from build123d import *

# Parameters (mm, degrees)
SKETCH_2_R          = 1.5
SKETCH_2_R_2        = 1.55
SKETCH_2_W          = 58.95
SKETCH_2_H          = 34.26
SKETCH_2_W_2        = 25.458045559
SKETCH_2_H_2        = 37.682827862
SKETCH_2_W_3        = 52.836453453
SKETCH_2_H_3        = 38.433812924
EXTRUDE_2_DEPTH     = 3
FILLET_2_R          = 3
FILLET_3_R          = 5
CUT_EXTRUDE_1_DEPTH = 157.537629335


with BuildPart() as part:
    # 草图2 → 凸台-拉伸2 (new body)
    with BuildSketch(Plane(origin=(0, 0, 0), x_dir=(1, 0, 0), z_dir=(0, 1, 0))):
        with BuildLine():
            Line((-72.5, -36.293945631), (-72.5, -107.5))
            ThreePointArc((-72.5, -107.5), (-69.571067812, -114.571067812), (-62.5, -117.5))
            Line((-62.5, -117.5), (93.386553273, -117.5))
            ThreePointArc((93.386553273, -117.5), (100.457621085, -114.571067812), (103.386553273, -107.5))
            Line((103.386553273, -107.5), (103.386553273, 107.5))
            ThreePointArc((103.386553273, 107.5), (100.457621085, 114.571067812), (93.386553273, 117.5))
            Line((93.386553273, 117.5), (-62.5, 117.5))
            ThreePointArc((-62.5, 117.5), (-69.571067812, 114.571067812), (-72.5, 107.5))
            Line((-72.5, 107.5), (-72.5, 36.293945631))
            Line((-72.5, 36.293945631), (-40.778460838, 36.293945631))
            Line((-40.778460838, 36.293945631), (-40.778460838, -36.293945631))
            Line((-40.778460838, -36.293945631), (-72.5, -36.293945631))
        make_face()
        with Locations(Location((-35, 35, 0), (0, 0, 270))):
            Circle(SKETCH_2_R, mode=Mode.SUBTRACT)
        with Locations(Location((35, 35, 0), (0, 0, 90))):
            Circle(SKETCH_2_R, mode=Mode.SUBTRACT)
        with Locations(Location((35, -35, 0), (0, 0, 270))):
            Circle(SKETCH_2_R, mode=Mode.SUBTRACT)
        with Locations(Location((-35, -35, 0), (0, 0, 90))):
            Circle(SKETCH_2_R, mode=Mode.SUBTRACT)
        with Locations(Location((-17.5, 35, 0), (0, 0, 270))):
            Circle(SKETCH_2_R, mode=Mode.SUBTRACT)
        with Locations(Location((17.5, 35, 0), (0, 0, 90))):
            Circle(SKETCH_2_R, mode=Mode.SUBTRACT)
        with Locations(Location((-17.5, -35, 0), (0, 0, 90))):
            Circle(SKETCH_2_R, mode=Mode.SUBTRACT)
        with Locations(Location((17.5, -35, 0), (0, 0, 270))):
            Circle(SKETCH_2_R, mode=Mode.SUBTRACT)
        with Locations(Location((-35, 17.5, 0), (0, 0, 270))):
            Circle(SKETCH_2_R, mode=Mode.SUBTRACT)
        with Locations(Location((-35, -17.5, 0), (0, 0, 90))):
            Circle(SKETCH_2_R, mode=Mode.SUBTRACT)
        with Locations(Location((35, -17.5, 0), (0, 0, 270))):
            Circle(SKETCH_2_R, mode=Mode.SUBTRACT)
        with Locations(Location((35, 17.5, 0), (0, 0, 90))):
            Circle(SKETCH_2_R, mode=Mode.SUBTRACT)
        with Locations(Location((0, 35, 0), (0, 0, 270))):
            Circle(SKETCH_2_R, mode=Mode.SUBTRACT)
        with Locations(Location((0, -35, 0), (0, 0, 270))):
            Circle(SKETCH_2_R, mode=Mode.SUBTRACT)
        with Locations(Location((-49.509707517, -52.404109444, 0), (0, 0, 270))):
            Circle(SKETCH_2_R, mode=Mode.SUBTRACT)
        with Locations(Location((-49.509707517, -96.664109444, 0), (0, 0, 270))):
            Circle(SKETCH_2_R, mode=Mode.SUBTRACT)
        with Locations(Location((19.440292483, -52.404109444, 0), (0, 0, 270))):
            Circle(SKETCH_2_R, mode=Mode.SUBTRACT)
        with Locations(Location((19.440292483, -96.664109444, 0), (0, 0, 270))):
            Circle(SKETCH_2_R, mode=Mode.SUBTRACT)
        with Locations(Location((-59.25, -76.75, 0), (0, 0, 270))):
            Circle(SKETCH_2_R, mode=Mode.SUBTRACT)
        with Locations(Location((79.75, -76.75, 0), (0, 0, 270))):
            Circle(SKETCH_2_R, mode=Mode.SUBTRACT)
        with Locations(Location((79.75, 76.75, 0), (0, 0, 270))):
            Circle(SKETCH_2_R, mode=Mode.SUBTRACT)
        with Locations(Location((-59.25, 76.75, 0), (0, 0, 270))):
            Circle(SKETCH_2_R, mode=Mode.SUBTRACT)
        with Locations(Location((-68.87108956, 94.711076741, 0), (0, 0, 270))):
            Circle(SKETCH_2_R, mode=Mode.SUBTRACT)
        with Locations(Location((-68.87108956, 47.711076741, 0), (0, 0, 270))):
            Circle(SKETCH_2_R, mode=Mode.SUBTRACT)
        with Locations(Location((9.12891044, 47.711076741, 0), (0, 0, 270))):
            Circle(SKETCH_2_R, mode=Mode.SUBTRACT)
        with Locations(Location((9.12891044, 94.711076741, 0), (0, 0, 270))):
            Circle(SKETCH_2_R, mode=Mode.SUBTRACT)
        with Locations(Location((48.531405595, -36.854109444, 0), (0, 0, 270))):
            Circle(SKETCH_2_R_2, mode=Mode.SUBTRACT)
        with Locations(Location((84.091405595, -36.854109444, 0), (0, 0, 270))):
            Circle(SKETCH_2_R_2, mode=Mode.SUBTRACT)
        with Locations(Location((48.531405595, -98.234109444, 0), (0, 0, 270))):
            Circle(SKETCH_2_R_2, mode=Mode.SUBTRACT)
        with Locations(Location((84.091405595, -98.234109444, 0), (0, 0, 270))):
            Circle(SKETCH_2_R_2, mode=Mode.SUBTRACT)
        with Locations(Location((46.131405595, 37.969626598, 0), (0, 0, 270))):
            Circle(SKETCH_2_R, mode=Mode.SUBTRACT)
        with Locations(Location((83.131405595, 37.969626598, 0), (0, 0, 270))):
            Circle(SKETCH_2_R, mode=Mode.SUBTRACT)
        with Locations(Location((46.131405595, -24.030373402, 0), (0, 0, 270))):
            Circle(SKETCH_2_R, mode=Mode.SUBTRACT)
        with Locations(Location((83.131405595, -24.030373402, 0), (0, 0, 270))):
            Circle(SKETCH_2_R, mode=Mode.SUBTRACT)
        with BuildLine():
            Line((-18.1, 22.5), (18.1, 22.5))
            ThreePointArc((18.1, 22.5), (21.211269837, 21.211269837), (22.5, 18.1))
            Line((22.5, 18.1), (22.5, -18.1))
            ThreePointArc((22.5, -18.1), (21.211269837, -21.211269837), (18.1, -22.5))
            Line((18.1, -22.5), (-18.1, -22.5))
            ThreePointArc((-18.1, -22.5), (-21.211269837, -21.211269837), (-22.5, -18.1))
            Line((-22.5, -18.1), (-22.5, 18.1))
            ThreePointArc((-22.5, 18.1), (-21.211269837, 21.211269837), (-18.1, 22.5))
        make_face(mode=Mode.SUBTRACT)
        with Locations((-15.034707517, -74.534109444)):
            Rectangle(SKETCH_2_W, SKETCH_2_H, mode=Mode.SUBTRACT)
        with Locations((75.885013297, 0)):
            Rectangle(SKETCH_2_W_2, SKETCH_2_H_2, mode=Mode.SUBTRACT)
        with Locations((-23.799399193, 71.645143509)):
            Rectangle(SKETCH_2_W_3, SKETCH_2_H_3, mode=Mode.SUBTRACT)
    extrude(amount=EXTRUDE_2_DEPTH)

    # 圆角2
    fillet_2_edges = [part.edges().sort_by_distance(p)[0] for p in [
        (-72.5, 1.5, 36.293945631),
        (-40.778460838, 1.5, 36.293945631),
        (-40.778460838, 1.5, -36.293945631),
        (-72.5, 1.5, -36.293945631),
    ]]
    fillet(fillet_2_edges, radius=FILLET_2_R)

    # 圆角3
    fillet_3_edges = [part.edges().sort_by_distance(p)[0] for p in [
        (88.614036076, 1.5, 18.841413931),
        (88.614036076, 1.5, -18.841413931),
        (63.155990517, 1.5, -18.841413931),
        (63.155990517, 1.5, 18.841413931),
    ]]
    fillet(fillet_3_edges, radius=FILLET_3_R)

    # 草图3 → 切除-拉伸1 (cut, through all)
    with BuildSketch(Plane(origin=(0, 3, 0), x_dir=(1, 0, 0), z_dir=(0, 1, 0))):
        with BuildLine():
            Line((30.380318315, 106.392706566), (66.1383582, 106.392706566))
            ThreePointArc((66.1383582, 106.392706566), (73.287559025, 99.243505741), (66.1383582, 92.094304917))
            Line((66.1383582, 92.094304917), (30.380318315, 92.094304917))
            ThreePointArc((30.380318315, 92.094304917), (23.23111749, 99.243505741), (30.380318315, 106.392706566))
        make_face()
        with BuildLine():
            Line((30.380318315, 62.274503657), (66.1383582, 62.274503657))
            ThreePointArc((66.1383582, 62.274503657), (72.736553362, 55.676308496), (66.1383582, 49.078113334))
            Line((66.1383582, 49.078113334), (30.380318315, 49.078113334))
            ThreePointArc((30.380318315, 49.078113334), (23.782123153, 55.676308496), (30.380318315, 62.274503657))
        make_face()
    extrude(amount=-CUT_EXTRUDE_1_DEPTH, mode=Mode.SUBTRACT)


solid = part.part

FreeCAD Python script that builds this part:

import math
import FreeCAD as App
import Part
import Sketcher
from FreeCAD import Vector


def edges_at(feature, points):
    """Names of the edges that pass closest to the given points."""
    edges = feature.Shape.Edges
    near = lambda p: min(range(len(edges)), key=lambda i: edges[i].distToShape(Part.Vertex(*p))[0])
    return sorted({f"Edge{near(p) + 1}" for p in points})


def add_polygon(sketch, points):
    """Adds a closed chain of lines whose ends are joined by coincident constraints."""
    first, n = sketch.GeometryCount, len(points)
    for a, b in zip(points, points[1:] + points[:1]):
        sketch.addGeometry(Part.LineSegment(App.Vector(*a, 0), App.Vector(*b, 0)), False)
    for i in range(n):
        sketch.addConstraint(Sketcher.Constraint("Coincident", first + i, 2, first + (i + 1) % n, 1))

doc = App.newDocument("Part")
body = doc.addObject("PartDesign::Body", "Body")

# Sketch on XZ plane
sketch1 = body.newObject("Sketcher::SketchObject", "Sketch")
sketch1.AttachmentSupport = (doc.getObject("XZ_Plane"), [""])
sketch1.MapMode = "FlatFace"
sketch1.addGeometry(Part.LineSegment(Vector(-72.5, 36.3, 0), Vector(-72.5, 107.5, 0)), False)  # 0
sketch1.addGeometry(Part.ArcOfCircle(Part.Circle(Vector(-62.5, 107.5, 0), Vector(0, 0, 1), 10), math.radians(90), math.radians(180)), False)  # 1
sketch1.addGeometry(Part.LineSegment(Vector(-62.5, 117.5, 0), Vector(93.4, 117.5, 0)), False)  # 2
sketch1.addGeometry(Part.ArcOfCircle(Part.Circle(Vector(93.4, 107.5, 0), Vector(0, 0, 1), 10), math.radians(0), math.radians(90)), False)  # 3
sketch1.addGeometry(Part.LineSegment(Vector(103.4, 107.5, 0), Vector(103.4, -107.5, 0)), False)  # 4
sketch1.addGeometry(Part.ArcOfCircle(Part.Circle(Vector(93.4, -107.5, 0), Vector(0, 0, 1), 10), math.radians(-90), math.radians(0)), False)  # 5
sketch1.addGeometry(Part.LineSegment(Vector(93.4, -117.5, 0), Vector(-62.5, -117.5, 0)), False)  # 6
sketch1.addGeometry(Part.ArcOfCircle(Part.Circle(Vector(-62.5, -107.5, 0), Vector(0, 0, 1), 10), math.radians(180), math.radians(270)), False)  # 7
sketch1.addGeometry(Part.LineSegment(Vector(-72.5, -107.5, 0), Vector(-72.5, -36.3, 0)), False)  # 8
sketch1.addGeometry(Part.LineSegment(Vector(-72.5, -36.3, 0), Vector(-40.8, -36.3, 0)), False)  # 9
sketch1.addGeometry(Part.LineSegment(Vector(-40.8, -36.3, 0), Vector(-40.8, 36.3, 0)), False)  # 10
sketch1.addGeometry(Part.LineSegment(Vector(-40.8, 36.3, 0), Vector(-72.5, 36.3, 0)), False)  # 11
sketch1.addGeometry(Part.Circle(Vector(-59.2, 76.8, 0), Vector(0, 0, 1), 1.5), False)  # 12
sketch1.addGeometry(Part.Circle(Vector(-49.5, 96.7, 0), Vector(0, 0, 1), 1.5), False)  # 13
sketch1.addGeometry(Part.Circle(Vector(-49.5, 52.4, 0), Vector(0, 0, 1), 1.5), False)  # 14
add_polygon(sketch1, [(14.4, 91.7), (-44.5, 91.7), (-44.5, 57.4), (14.4, 57.4)])  # lines 15-18
sketch1.addGeometry(Part.Circle(Vector(-35, 35, 0), Vector(0, 0, 1), 1.5), False)  # 19
sketch1.addGeometry(Part.Circle(Vector(-35, 17.5, 0), Vector(0, 0, 1), 1.5), False)  # 20
sketch1.addGeometry(Part.Circle(Vector(-17.5, 35, 0), Vector(0, 0, 1), 1.5), False)  # 21
sketch1.addGeometry(Part.Circle(Vector(0, 35, 0), Vector(0, 0, 1), 1.5), False)  # 22
sketch1.addGeometry(Part.Circle(Vector(19.4, 96.7, 0), Vector(0, 0, 1), 1.5), False)  # 23
sketch1.addGeometry(Part.Circle(Vector(48.5, 98.2, 0), Vector(0, 0, 1), 1.6), False)  # 24
sketch1.addGeometry(Part.Circle(Vector(19.4, 52.4, 0), Vector(0, 0, 1), 1.5), False)  # 25
sketch1.addGeometry(Part.Circle(Vector(84.1, 98.2, 0), Vector(0, 0, 1), 1.6), False)  # 26
sketch1.addGeometry(Part.Circle(Vector(79.8, 76.8, 0), Vector(0, 0, 1), 1.5), False)  # 27
sketch1.addGeometry(Part.Circle(Vector(17.5, 35, 0), Vector(0, 0, 1), 1.5), False)  # 28
sketch1.addGeometry(Part.Circle(Vector(35, 35, 0), Vector(0, 0, 1), 1.5), False)  # 29
sketch1.addGeometry(Part.Circle(Vector(48.5, 36.9, 0), Vector(0, 0, 1), 1.6), False)  # 30
sketch1.addGeometry(Part.Circle(Vector(35, 17.5, 0), Vector(0, 0, 1), 1.5), False)  # 31
sketch1.addGeometry(Part.Circle(Vector(46.1, 24, 0), Vector(0, 0, 1), 1.5), False)  # 32
sketch1.addGeometry(Part.Circle(Vector(84.1, 36.9, 0), Vector(0, 0, 1), 1.6), False)  # 33
sketch1.addGeometry(Part.Circle(Vector(83.1, 24, 0), Vector(0, 0, 1), 1.5), False)  # 34
sketch1.addGeometry(Part.Circle(Vector(-35, -17.5, 0), Vector(0, 0, 1), 1.5), False)  # 35
sketch1.addGeometry(Part.Circle(Vector(-35, -35, 0), Vector(0, 0, 1), 1.5), False)  # 36
sketch1.addGeometry(Part.ArcOfCircle(Part.Circle(Vector(-18.1, -18.1, 0), Vector(0, 0, 1), 4.4), math.radians(-180), math.radians(-90)), False)  # 37
sketch1.addGeometry(Part.LineSegment(Vector(-18.1, -22.5, 0), Vector(18.1, -22.5, 0)), False)  # 38
sketch1.addGeometry(Part.ArcOfCircle(Part.Circle(Vector(18.1, -18.1, 0), Vector(0, 0, 1), 4.4), math.radians(-90), math.radians(0)), False)  # 39
sketch1.addGeometry(Part.LineSegment(Vector(22.5, -18.1, 0), Vector(22.5, 18.1, 0)), False)  # 40
sketch1.addGeometry(Part.ArcOfCircle(Part.Circle(Vector(18.1, 18.1, 0), Vector(0, 0, 1), 4.4), math.radians(0), math.radians(90)), False)  # 41
sketch1.addGeometry(Part.LineSegment(Vector(18.1, 22.5, 0), Vector(-18.1, 22.5, 0)), False)  # 42
sketch1.addGeometry(Part.ArcOfCircle(Part.Circle(Vector(-18.1, 18.1, 0), Vector(0, 0, 1), 4.4), math.radians(90), math.radians(180)), False)  # 43
sketch1.addGeometry(Part.LineSegment(Vector(-22.5, 18.1, 0), Vector(-22.5, -18.1, 0)), False)  # 44
sketch1.addGeometry(Part.Circle(Vector(-17.5, -35, 0), Vector(0, 0, 1), 1.5), False)  # 45
sketch1.addGeometry(Part.Circle(Vector(0, -35, 0), Vector(0, 0, 1), 1.5), False)  # 46
sketch1.addGeometry(Part.Circle(Vector(-68.9, -47.7, 0), Vector(0, 0, 1), 1.5), False)  # 47
sketch1.addGeometry(Part.Circle(Vector(-59.2, -76.8, 0), Vector(0, 0, 1), 1.5), False)  # 48
sketch1.addGeometry(Part.Circle(Vector(-68.9, -94.7, 0), Vector(0, 0, 1), 1.5), False)  # 49
add_polygon(sketch1, [(2.6, -52.4), (-50.2, -52.4), (-50.2, -90.9), (2.6, -90.9)])  # lines 50-53
sketch1.addGeometry(Part.Circle(Vector(35, -17.5, 0), Vector(0, 0, 1), 1.5), False)  # 54
sketch1.addGeometry(Part.Circle(Vector(17.5, -35, 0), Vector(0, 0, 1), 1.5), False)  # 55
sketch1.addGeometry(Part.Circle(Vector(35, -35, 0), Vector(0, 0, 1), 1.5), False)  # 56
sketch1.addGeometry(Part.Circle(Vector(46.1, -38, 0), Vector(0, 0, 1), 1.5), False)  # 57
add_polygon(sketch1, [(88.6, 18.8), (63.2, 18.8), (63.2, -18.8), (88.6, -18.8)])  # lines 58-61
sketch1.addGeometry(Part.Circle(Vector(83.1, -38, 0), Vector(0, 0, 1), 1.5), False)  # 62
sketch1.addGeometry(Part.Circle(Vector(9.1, -47.7, 0), Vector(0, 0, 1), 1.5), False)  # 63
sketch1.addGeometry(Part.Circle(Vector(9.1, -94.7, 0), Vector(0, 0, 1), 1.5), False)  # 64
sketch1.addGeometry(Part.Circle(Vector(79.8, -76.8, 0), Vector(0, 0, 1), 1.5), False)  # 65
sketch1.addConstraint([
    Sketcher.Constraint("Tangent", 0, 2, 1, 2),
    Sketcher.Constraint("Tangent", 1, 1, 2, 1),
    Sketcher.Constraint("Tangent", 2, 2, 3, 2),
    Sketcher.Constraint("Tangent", 3, 1, 4, 1),
    Sketcher.Constraint("Tangent", 4, 2, 5, 2),
    Sketcher.Constraint("Tangent", 5, 1, 6, 1),
    Sketcher.Constraint("Tangent", 6, 2, 7, 2),
    Sketcher.Constraint("Tangent", 7, 1, 8, 1),
    Sketcher.Constraint("Coincident", 8, 2, 9, 1),
    Sketcher.Constraint("Coincident", 9, 2, 10, 1),
    Sketcher.Constraint("Coincident", 10, 2, 11, 1),
    Sketcher.Constraint("Coincident", 11, 2, 0, 1),
    Sketcher.Constraint("Tangent", 37, 2, 38, 1),
    Sketcher.Constraint("Tangent", 38, 2, 39, 1),
    Sketcher.Constraint("Tangent", 39, 2, 40, 1),
    Sketcher.Constraint("Tangent", 40, 2, 41, 1),
    Sketcher.Constraint("Tangent", 41, 2, 42, 1),
    Sketcher.Constraint("Tangent", 42, 2, 43, 1),
    Sketcher.Constraint("Tangent", 43, 2, 44, 1),
    Sketcher.Constraint("Tangent", 44, 2, 37, 1),
    Sketcher.Constraint("Vertical", 0),
    Sketcher.Constraint("Horizontal", 2),
    Sketcher.Constraint("Vertical", 4),
    Sketcher.Constraint("Horizontal", 6),
    Sketcher.Constraint("Vertical", 8),
    Sketcher.Constraint("Horizontal", 9),
    Sketcher.Constraint("Vertical", 10),
    Sketcher.Constraint("Horizontal", 11),
    Sketcher.Constraint("Horizontal", 15),
    Sketcher.Constraint("Vertical", 16),
    Sketcher.Constraint("Horizontal", 17),
    Sketcher.Constraint("Vertical", 18),
    Sketcher.Constraint("Horizontal", 38),
    Sketcher.Constraint("Vertical", 40),
    Sketcher.Constraint("Horizontal", 42),
    Sketcher.Constraint("Vertical", 44),
    Sketcher.Constraint("Horizontal", 50),
    Sketcher.Constraint("Vertical", 51),
    Sketcher.Constraint("Horizontal", 52),
    Sketcher.Constraint("Vertical", 53),
    Sketcher.Constraint("Horizontal", 58),
    Sketcher.Constraint("Vertical", 59),
    Sketcher.Constraint("Horizontal", 60),
    Sketcher.Constraint("Vertical", 61),
    Sketcher.Constraint("Equal", 1, 3),
    Sketcher.Constraint("Equal", 3, 5),
    Sketcher.Constraint("Equal", 5, 7),
    Sketcher.Constraint("Equal", 12, 13),
    Sketcher.Constraint("Equal", 13, 14),
    Sketcher.Constraint("Equal", 14, 19),
    Sketcher.Constraint("Equal", 19, 20),
    Sketcher.Constraint("Equal", 20, 21),
    Sketcher.Constraint("Equal", 21, 22),
    Sketcher.Constraint("Equal", 22, 23),
    Sketcher.Constraint("Equal", 23, 25),
    Sketcher.Constraint("Equal", 24, 26),
    Sketcher.Constraint("Equal", 25, 27),
    Sketcher.Constraint("Equal", 27, 28),
    Sketcher.Constraint("Equal", 28, 29),
    Sketcher.Constraint("Equal", 26, 30),
    Sketcher.Constraint("Equal", 29, 31),
    Sketcher.Constraint("Equal", 31, 32),
    Sketcher.Constraint("Equal", 30, 33),
    Sketcher.Constraint("Equal", 32, 34),
    Sketcher.Constraint("Equal", 34, 35),
    Sketcher.Constraint("Equal", 35, 36),
    Sketcher.Constraint("Equal", 37, 39),
    Sketcher.Constraint("Equal", 39, 41),
    Sketcher.Constraint("Equal", 41, 43),
    Sketcher.Constraint("Equal", 36, 45),
    Sketcher.Constraint("Equal", 45, 46),
    Sketcher.Constraint("Equal", 46, 47),
    Sketcher.Constraint("Equal", 47, 48),
    Sketcher.Constraint("Equal", 48, 49),
    Sketcher.Constraint("Equal", 49, 54),
    Sketcher.Constraint("Equal", 54, 55),
    Sketcher.Constraint("Equal", 55, 56),
    Sketcher.Constraint("Equal", 56, 57),
    Sketcher.Constraint("Equal", 57, 62),
    Sketcher.Constraint("Equal", 62, 63),
    Sketcher.Constraint("Equal", 63, 64),
    Sketcher.Constraint("Equal", 64, 65),
    Sketcher.Constraint("Symmetric", 31, 3, 35, 3, -1, 1),
    Sketcher.Constraint("Symmetric", 29, 3, 36, 3, -1, 1),
    Sketcher.Constraint("Symmetric", 37, 3, 41, 3, -1, 1),
    Sketcher.Constraint("Symmetric", 28, 3, 45, 3, -1, 1),
    Sketcher.Constraint("Symmetric", 22, 3, 46, 3, -1, 1),
    Sketcher.Constraint("Symmetric", 20, 3, 54, 3, -1, 1),
    Sketcher.Constraint("Symmetric", 21, 3, 55, 3, -1, 1),
    Sketcher.Constraint("Symmetric", 19, 3, 56, 3, -1, 1),
    Sketcher.Constraint("Symmetric", 21, 3, 28, 3, -2),
    Sketcher.Constraint("Symmetric", 19, 3, 29, 3, -2),
    Sketcher.Constraint("Symmetric", 20, 3, 31, 3, -2),
    Sketcher.Constraint("Symmetric", 1, 3, 7, 3, -1),
    Sketcher.Constraint("Symmetric", 12, 3, 48, 3, -1),
    Sketcher.Constraint("Symmetric", 27, 3, 65, 3, -1),
    Sketcher.Constraint("PointOnObject", 22, 3, -2),
    Sketcher.Constraint("Horizontal", 19, 3, 21, 3),
    Sketcher.Constraint("Horizontal", 21, 3, 22, 3),
    Sketcher.Constraint("Horizontal", 13, 3, 23, 3),
    Sketcher.Constraint("Horizontal", 14, 3, 25, 3),
    Sketcher.Constraint("Horizontal", 24, 3, 26, 3),
    Sketcher.Constraint("Horizontal", 12, 3, 27, 3),
    Sketcher.Constraint("Horizontal", 30, 3, 33, 3),
    Sketcher.Constraint("Horizontal", 32, 3, 34, 3),
    Sketcher.Constraint("Horizontal", 57, 3, 62, 3),
    Sketcher.Constraint("Horizontal", 47, 3, 63, 3),
    Sketcher.Constraint("Horizontal", 49, 3, 64, 3),
    Sketcher.Constraint("Vertical", 13, 3, 14, 3),
    Sketcher.Constraint("Vertical", 19, 3, 20, 3),
    Sketcher.Constraint("Vertical", 23, 3, 25, 3),
    Sketcher.Constraint("Vertical", 24, 3, 30, 3),
    Sketcher.Constraint("Vertical", 26, 3, 33, 3),
    Sketcher.Constraint("Vertical", 47, 3, 49, 3),
    Sketcher.Constraint("Vertical", 32, 3, 57, 3),
    Sketcher.Constraint("Vertical", 34, 3, 62, 3),
    Sketcher.Constraint("Vertical", 63, 3, 64, 3),
    Sketcher.Constraint("Equal", 0, 8),
    Sketcher.Constraint("Equal", 42, 40),
    Sketcher.Constraint("Diameter", 12, 3.0),
    Sketcher.Constraint("Radius", 1, 10.0),
    Sketcher.Constraint("Diameter", 24, 3.1),
    Sketcher.Constraint("Radius", 37, 4.4),
    Sketcher.Constraint("DistanceY", 4, 2, 4, 1, 215.0),
    Sketcher.Constraint("DistanceX", 38, 1, 38, 2, 36.2),
    Sketcher.Constraint("DistanceX", 19, 3, -1, 1, 35.0),
    Sketcher.Constraint("DistanceY", -1, 1, 19, 3, 35.0),
    Sketcher.Constraint("DistanceX", 15, 2, 15, 1, 58.95),
    Sketcher.Constraint("DistanceY", 16, 2, 16, 1, 34.26),
    Sketcher.Constraint("DistanceX", 1, 3, -1, 1, 62.5),
    Sketcher.Constraint("DistanceY", -1, 1, 20, 3, 17.5),
    Sketcher.Constraint("DistanceX", 21, 3, -1, 1, 17.5),
    Sketcher.Constraint("DistanceX", 12, 3, -1, 1, 59.25),
    Sketcher.Constraint("DistanceY", -1, 1, 12, 3, 76.75),
    Sketcher.Constraint("DistanceX", -1, 1, 27, 3, 79.75),
    Sketcher.Constraint("DistanceX", 9, 1, 9, 2, 31.721539),
    Sketcher.Constraint("DistanceY", 10, 1, 10, 2, 72.587891),
    Sketcher.Constraint("DistanceX", 2, 1, 2, 2, 155.886553),
    Sketcher.Constraint("DistanceX", 50, 2, 50, 1, 52.836453),
    Sketcher.Constraint("DistanceX", 58, 2, 58, 1, 25.458046),
    Sketcher.Constraint("DistanceY", 51, 2, 51, 1, 38.433813),
    Sketcher.Constraint("DistanceY", 59, 2, 59, 1, 37.682828),
    Sketcher.Constraint("DistanceY", -1, 1, 13, 3, 96.664109),
    Sketcher.Constraint("DistanceY", -1, 1, 14, 3, 52.404109),
    Sketcher.Constraint("DistanceY", -1, 1, 24, 3, 98.234109),
    Sketcher.Constraint("DistanceY", -1, 1, 30, 3, 36.854109),
    Sketcher.Constraint("DistanceX", 47, 3, -1, 1, 68.87109),
    Sketcher.Constraint("DistanceX", -1, 1, 63, 3, 9.12891),
    Sketcher.Constraint("DistanceY", -1, 1, 15, 2, 91.664109),
    Sketcher.Constraint("DistanceY", 51, 2, -1, 1, 90.86205),
    Sketcher.Constraint("DistanceX", -1, 1, 58, 2, 63.155991),
    Sketcher.Constraint("DistanceX", 13, 3, -1, 1, 49.509708),
    Sketcher.Constraint("DistanceX", -1, 1, 23, 3, 19.440292),
    Sketcher.Constraint("DistanceX", -1, 1, 24, 3, 48.531406),
    Sketcher.Constraint("DistanceX", -1, 1, 26, 3, 84.091406),
    Sketcher.Constraint("DistanceX", -1, 1, 32, 3, 46.131406),
    Sketcher.Constraint("DistanceY", -1, 1, 32, 3, 24.030373),
    Sketcher.Constraint("DistanceX", -1, 1, 34, 3, 83.131406),
    Sketcher.Constraint("DistanceY", 47, 3, -1, 1, 47.711077),
    Sketcher.Constraint("DistanceY", 49, 3, -1, 1, 94.711077),
    Sketcher.Constraint("DistanceY", 57, 3, -1, 1, 37.969627),
    Sketcher.Constraint("DistanceX", 15, 2, -1, 1, 44.509708),
    Sketcher.Constraint("DistanceX", 50, 2, -1, 1, 50.217626),
    Sketcher.Constraint("DistanceY", -1, 1, 58, 2, 18.841414),
])
pad1 = body.newObject("PartDesign::Pad", "Pad")
pad1.Profile = sketch1
pad1.Length = 3
pad1.Reversed = True
doc.recompute()

fillet = body.newObject("PartDesign::Fillet", "Fillet")
fillet.Base = (pad1, edges_at(pad1, [
    (-72.5, 1.5, 36.294),
    (-40.778, 1.5, 36.294),
    (-40.778, 1.5, -36.294),
    (-72.5, 1.5, -36.294),
]))
fillet.Radius = 3
doc.recompute()

fillet2 = body.newObject("PartDesign::Fillet", "Fillet001")
fillet2.Base = (fillet, edges_at(fillet, [
    (88.614, 1.5, 18.841),
    (88.614, 1.5, -18.841),
    (63.156, 1.5, -18.841),
    (63.156, 1.5, 18.841),
]))
fillet2.Radius = 5

# Sketch on XZ plane
sketch2 = body.newObject("Sketcher::SketchObject", "Sketch001")
sketch2.AttachmentSupport = (doc.getObject("XZ_Plane"), [""])
sketch2.MapMode = "FlatFace"
sketch2.AttachmentOffset = App.Placement(Vector(0, 0, -3), App.Rotation())
sketch2.addGeometry([
    Part.LineSegment(Vector(66, -106, 0), Vector(30, -106, 0)),  # 0
    Part.ArcOfCircle(Part.Circle(Vector(30, -99, 0), Vector(0, 0, 1), 7), math.radians(90), math.radians(270)),  # 1
    Part.LineSegment(Vector(30, -92, 0), Vector(66, -92, 0)),  # 2
    Part.ArcOfCircle(Part.Circle(Vector(66, -99, 0), Vector(0, 0, 1), 7), math.radians(-90), math.radians(90)),  # 3
    Part.LineSegment(Vector(66, -62, 0), Vector(30, -62, 0)),  # 4
    Part.ArcOfCircle(Part.Circle(Vector(30, -56, 0), Vector(0, 0, 1), 7), math.radians(90), math.radians(270)),  # 5
    Part.LineSegment(Vector(30, -49, 0), Vector(66, -49, 0)),  # 6
    Part.ArcOfCircle(Part.Circle(Vector(66, -56, 0), Vector(0, 0, 1), 7), math.radians(-90), math.radians(90)),  # 7
], False)
sketch2.addConstraint([
    Sketcher.Constraint("Tangent", 0, 2, 1, 2),
    Sketcher.Constraint("Tangent", 1, 1, 2, 1),
    Sketcher.Constraint("Tangent", 2, 2, 3, 2),
    Sketcher.Constraint("Tangent", 3, 1, 0, 1),
    Sketcher.Constraint("Tangent", 4, 2, 5, 2),
    Sketcher.Constraint("Tangent", 5, 1, 6, 1),
    Sketcher.Constraint("Tangent", 6, 2, 7, 2),
    Sketcher.Constraint("Tangent", 7, 1, 4, 1),
    Sketcher.Constraint("Horizontal", 0),
    Sketcher.Constraint("Horizontal", 2),
    Sketcher.Constraint("Horizontal", 4),
    Sketcher.Constraint("Horizontal", 6),
    Sketcher.Constraint("Vertical", 1, 3, 5, 3),
    Sketcher.Constraint("Vertical", 3, 3, 7, 3),
    Sketcher.Constraint("Radius", 1, 7.149201),
    Sketcher.Constraint("Radius", 5, 6.598195),
    Sketcher.Constraint("DistanceX", 0, 2, 0, 1, 35.75804),
    Sketcher.Constraint("DistanceY", 0, 2, 5, 3, 50.716398),
    Sketcher.Constraint("DistanceX", -1, 1, 1, 3, 30.380318),
    Sketcher.Constraint("DistanceY", 5, 3, -1, 1, 55.676308),
])
pocket1 = body.newObject("PartDesign::Pocket", "Pocket")
pocket1.Profile = sketch2
pocket1.Type = "ThroughAll"
pocket1.Reversed = True

doc.recompute()
